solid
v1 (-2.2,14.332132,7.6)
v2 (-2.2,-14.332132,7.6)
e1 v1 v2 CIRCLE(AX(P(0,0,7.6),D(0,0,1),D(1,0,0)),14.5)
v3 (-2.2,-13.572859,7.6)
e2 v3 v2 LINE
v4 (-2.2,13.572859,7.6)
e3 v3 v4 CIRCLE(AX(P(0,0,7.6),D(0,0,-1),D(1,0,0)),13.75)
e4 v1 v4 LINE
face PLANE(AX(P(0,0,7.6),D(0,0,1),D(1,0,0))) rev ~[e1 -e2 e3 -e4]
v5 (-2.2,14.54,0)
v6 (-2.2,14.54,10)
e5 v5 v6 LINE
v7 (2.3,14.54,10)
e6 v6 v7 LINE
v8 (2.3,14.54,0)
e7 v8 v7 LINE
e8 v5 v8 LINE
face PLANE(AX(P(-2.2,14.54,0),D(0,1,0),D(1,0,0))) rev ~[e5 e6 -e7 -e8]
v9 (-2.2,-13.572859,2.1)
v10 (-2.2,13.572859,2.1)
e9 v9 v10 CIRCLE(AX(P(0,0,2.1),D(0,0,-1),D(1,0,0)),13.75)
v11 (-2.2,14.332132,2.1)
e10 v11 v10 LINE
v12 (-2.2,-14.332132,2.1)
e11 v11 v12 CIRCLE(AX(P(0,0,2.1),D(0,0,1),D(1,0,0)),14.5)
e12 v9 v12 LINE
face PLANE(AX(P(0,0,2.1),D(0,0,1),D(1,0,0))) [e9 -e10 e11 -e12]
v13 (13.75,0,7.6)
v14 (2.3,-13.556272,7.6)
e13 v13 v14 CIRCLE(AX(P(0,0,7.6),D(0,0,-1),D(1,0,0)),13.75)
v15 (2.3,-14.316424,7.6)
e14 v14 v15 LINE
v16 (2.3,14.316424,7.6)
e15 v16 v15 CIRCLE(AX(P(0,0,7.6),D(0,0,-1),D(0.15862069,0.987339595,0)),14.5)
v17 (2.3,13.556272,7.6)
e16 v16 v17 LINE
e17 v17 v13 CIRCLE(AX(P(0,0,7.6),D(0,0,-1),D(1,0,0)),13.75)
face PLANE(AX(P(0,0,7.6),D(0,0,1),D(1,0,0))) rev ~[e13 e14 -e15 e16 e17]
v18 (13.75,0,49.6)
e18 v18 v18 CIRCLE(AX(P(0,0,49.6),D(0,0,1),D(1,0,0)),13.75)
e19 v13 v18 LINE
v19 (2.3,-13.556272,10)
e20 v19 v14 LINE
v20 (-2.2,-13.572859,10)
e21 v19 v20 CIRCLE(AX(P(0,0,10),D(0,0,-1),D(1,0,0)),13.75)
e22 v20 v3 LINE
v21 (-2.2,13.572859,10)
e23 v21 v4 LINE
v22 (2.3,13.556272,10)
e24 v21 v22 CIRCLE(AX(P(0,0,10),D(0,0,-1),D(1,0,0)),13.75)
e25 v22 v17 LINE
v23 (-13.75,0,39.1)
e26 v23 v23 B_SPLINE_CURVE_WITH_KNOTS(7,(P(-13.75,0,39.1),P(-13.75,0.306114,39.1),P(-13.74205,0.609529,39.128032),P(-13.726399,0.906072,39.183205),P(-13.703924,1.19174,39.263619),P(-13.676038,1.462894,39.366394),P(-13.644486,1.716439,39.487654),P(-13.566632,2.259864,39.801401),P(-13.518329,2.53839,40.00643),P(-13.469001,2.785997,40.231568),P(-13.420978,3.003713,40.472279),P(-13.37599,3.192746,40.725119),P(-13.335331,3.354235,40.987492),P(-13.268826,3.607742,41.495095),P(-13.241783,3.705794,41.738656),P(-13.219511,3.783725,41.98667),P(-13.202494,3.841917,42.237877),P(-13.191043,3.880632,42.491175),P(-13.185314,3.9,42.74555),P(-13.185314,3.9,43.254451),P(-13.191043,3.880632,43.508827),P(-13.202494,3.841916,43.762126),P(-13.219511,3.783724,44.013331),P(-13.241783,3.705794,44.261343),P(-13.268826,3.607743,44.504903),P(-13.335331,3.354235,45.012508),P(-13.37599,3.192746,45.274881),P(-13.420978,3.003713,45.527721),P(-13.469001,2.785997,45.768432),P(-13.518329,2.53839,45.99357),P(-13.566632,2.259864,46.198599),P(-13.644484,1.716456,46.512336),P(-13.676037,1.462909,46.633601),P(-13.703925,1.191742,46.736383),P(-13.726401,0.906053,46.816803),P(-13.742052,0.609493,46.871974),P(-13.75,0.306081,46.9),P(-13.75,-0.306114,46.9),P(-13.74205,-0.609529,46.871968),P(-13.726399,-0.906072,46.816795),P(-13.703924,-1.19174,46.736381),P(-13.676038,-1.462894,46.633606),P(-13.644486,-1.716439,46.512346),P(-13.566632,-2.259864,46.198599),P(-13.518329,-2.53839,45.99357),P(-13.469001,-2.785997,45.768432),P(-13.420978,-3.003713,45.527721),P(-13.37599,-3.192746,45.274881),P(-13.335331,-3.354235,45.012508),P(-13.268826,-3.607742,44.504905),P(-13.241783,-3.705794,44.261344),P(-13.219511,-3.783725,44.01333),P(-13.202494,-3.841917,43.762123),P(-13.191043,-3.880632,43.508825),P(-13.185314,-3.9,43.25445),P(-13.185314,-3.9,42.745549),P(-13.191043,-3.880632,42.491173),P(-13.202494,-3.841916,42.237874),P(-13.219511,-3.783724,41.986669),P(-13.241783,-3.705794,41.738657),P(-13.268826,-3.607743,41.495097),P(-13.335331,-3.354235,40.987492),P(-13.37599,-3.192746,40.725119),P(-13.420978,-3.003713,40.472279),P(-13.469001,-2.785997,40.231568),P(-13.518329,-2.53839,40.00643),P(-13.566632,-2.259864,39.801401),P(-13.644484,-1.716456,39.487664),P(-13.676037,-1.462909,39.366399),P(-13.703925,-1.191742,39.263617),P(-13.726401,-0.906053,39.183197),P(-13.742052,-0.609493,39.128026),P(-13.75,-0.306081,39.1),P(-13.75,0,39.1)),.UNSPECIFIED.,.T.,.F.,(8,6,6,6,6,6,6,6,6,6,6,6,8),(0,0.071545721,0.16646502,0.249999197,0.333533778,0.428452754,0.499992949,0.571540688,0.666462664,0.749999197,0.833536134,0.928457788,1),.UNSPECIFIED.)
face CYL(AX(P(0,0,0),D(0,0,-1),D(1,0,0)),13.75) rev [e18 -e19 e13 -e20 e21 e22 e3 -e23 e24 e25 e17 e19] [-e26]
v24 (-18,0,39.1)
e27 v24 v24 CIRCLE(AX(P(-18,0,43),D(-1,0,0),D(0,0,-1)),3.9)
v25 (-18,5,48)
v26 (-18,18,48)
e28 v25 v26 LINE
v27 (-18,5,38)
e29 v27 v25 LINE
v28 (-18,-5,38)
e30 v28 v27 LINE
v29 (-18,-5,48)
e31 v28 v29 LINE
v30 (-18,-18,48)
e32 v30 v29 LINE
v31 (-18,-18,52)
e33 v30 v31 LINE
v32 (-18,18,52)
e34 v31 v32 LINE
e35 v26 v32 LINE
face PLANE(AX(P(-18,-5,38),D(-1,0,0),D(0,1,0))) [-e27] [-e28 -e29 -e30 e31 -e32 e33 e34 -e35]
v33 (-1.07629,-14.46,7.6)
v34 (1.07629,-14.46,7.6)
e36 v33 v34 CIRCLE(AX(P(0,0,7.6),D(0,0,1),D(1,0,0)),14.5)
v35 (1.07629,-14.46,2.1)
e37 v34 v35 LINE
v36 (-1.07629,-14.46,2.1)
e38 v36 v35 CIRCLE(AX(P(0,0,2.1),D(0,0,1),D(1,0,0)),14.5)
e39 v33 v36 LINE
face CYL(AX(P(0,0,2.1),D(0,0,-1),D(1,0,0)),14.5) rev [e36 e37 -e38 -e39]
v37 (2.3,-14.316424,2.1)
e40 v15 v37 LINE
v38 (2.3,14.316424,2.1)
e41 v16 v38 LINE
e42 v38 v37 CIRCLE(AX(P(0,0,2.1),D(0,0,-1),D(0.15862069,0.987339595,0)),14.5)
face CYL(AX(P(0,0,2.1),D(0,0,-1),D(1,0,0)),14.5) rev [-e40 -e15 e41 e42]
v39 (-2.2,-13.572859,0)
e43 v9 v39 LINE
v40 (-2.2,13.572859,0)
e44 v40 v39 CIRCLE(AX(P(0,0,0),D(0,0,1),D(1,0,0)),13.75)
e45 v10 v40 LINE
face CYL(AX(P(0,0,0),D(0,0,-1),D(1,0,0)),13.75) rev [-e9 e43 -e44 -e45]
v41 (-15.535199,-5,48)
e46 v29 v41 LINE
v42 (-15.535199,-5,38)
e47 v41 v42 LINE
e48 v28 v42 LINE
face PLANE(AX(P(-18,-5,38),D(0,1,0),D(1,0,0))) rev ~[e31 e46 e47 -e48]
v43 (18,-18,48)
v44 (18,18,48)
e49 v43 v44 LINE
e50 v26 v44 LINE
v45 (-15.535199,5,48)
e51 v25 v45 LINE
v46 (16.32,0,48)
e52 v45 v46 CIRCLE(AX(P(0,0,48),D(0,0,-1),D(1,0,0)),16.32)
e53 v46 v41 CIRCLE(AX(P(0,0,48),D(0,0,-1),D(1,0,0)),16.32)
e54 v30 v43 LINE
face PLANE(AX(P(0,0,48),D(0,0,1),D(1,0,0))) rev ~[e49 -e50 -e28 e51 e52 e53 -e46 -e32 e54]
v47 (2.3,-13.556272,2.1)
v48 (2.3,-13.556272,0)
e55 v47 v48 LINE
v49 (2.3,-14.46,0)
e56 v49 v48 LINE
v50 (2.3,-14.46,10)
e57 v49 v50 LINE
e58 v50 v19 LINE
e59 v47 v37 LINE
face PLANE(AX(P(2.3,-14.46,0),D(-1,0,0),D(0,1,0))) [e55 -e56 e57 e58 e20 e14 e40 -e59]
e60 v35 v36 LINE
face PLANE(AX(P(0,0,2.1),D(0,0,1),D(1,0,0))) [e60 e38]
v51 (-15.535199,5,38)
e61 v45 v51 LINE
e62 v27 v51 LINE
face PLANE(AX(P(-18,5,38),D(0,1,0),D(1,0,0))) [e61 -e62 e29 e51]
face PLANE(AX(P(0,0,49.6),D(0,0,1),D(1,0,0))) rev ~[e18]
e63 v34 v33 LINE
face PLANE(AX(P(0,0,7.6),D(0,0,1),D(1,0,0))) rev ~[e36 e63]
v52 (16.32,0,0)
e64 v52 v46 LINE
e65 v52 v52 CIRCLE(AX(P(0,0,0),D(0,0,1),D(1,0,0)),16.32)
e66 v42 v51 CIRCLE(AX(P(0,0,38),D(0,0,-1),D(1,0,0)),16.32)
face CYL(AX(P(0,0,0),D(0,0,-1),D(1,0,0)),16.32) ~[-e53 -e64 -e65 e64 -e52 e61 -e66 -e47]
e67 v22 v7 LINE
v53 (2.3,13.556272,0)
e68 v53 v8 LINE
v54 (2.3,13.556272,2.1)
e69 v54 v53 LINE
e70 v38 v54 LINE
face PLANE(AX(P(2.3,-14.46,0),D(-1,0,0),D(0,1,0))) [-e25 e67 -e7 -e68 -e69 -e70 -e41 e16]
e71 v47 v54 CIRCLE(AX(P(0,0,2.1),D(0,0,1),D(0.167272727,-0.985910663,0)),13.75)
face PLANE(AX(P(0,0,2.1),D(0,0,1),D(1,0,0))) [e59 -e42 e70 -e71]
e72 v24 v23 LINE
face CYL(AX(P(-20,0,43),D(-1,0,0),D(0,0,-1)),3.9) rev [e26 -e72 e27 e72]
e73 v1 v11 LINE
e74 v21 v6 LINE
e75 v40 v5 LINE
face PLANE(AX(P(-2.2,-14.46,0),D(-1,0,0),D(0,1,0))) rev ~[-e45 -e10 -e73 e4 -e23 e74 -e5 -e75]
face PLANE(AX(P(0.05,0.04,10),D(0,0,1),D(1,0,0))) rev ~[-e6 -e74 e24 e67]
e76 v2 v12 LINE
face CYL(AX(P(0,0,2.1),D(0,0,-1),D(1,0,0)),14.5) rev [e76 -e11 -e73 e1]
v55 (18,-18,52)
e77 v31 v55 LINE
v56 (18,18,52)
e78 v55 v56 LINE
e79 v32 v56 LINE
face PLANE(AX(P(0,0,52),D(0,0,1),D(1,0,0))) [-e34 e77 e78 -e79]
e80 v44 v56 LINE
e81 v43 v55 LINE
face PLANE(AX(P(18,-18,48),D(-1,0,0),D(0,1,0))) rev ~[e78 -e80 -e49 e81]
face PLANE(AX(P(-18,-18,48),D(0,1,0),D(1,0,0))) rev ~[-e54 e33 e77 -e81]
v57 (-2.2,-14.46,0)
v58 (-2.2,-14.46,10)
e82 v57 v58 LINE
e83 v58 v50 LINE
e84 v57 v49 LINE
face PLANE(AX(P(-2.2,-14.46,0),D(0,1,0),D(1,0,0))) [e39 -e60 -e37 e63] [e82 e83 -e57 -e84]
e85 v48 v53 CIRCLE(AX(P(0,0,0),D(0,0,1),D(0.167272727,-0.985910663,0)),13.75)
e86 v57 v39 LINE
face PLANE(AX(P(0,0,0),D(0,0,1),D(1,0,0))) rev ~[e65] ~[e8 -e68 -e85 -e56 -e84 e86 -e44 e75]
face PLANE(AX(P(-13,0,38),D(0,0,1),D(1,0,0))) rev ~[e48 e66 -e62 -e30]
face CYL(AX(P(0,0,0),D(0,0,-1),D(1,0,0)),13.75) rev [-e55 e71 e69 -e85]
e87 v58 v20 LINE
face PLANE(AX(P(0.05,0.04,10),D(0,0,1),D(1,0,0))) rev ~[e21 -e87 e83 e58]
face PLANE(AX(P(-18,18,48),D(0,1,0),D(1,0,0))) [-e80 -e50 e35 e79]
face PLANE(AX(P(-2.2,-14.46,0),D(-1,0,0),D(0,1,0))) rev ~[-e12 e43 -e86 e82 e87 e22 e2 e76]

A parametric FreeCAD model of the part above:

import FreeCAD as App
import Part
import Sketcher

V = App.Vector
Q = App.Units.Quantity

doc = App.newDocument("Part")
params = doc.addObject("Spreadsheet::Sheet", "Params")
for row, (alias, value) in enumerate([
    ("sketch1_height", "29 mm"),
    ("sketch1_width", "4.5 mm"),
    ("pad1_length", "10 mm"),
    ("sketch2_diameter", "29 mm"),
    ("pad2_length", "5.5 mm"),
    ("sketch3_diameter", "7.8 mm"),
    ("pad3_length", "10 mm"),
    ("sketch4_diameter", "27.5 mm"),
    ("pad4_length", "49.6 mm"),
    ("sketch5_width", "36 mm"),
    ("pad5_length", "4 mm"),
    ("sketch6_width", "10 mm"),
    ("pad6_length", "10 mm"),
    ("sketch7_diameter", "32.64 mm"),
    ("pad7_length", "52 mm"),
], start=1):
    params.set(f"A{row}", alias)
    params.set(f"B{row}", "=" + value)
    params.setAlias(f"B{row}", alias)

body = doc.addObject("PartDesign::Body", "Body")

# Sketch on XY plane
sketch1 = body.newObject("Sketcher::SketchObject", "Sketch")
sketch1.AttachmentSupport = (doc.getObject("XY_Plane"), [""])
sketch1.MapMode = "FlatFace"
sketch1.addGeometry(Part.LineSegment(V(-2.2, 14.5, 0), V(-2.2, -14.5, 0)), False)
sketch1.addGeometry(Part.LineSegment(V(-2.2, -14.5, 0), V(2.3, -14.5, 0)), False)
sketch1.addGeometry(Part.LineSegment(V(2.3, -14.5, 0), V(2.3, 14.5, 0)), False)
sketch1.addGeometry(Part.LineSegment(V(2.3, 14.5, 0), V(-2.2, 14.5, 0)), False)
sketch1.addConstraint(Sketcher.Constraint("Coincident", 0, 2, 1, 1))
sketch1.addConstraint(Sketcher.Constraint("Coincident", 1, 2, 2, 1))
sketch1.addConstraint(Sketcher.Constraint("Coincident", 2, 2, 3, 1))
sketch1.addConstraint(Sketcher.Constraint("Coincident", 3, 2, 0, 1))
sketch1.addConstraint(Sketcher.Constraint("Vertical", 0))
sketch1.addConstraint(Sketcher.Constraint("Horizontal", 1))
sketch1.addConstraint(Sketcher.Constraint("Vertical", 2))
sketch1.addConstraint(Sketcher.Constraint("Horizontal", 3))
sketch1.addConstraint(Sketcher.Constraint("DistanceY", 0, 2, 0, 1, Q("29 mm")))
sketch1.addConstraint(Sketcher.Constraint("DistanceX", 1, 1, 1, 2, Q("4.5 mm")))
sketch1.addConstraint(Sketcher.Constraint("DistanceX", 0, 2, -1, 1, Q("2.2 mm")))
sketch1.addConstraint(Sketcher.Constraint("DistanceY", 0, 2, -1, 1, Q("14.46 mm")))
sketch1.setExpression("Constraints[8]", "Params.sketch1_height")
sketch1.setExpression("Constraints[9]", "Params.sketch1_width")
pad1 = body.newObject("PartDesign::Pad", "Pad")
pad1.Profile = sketch1
pad1.setExpression("Length", "Params.pad1_length")
body2 = doc.addObject("PartDesign::Body", "Body001")

# Sketch on XY plane
sketch2 = body2.newObject("Sketcher::SketchObject", "Sketch001")
sketch2.AttachmentSupport = (doc.getObject("XY_Plane001"), [""])
sketch2.MapMode = "FlatFace"
sketch2.AttachmentOffset = App.Placement(V(0, 0, 2.1), App.Rotation())
sketch2.addGeometry(Part.Circle(V(0, 0, 0), V(0, 0, 1), 14), False)
sketch2.addConstraint(Sketcher.Constraint("Coincident", 0, 3, -1, 1))
sketch2.addConstraint(Sketcher.Constraint("Diameter", 0, Q("29 mm")))
sketch2.setExpression("Constraints[1]", "Params.sketch2_diameter")
pad2 = body2.newObject("PartDesign::Pad", "Pad001")
pad2.Profile = sketch2
pad2.setExpression("Length", "Params.pad2_length")
body3 = doc.addObject("PartDesign::Body", "Body002")

# Sketch on YZ plane
sketch3 = body3.newObject("Sketcher::SketchObject", "Sketch002")
sketch3.AttachmentSupport = (doc.getObject("YZ_Plane002"), [""])
sketch3.MapMode = "FlatFace"
sketch3.AttachmentOffset = App.Placement(V(0, 0, -20), App.Rotation())
sketch3.addGeometry(Part.Circle(V(0, 43, 0), V(0, 0, 1), 3.9), False)
sketch3.addConstraint(Sketcher.Constraint("PointOnObject", 0, 3, -2))
sketch3.addConstraint(Sketcher.Constraint("Diameter", 0, Q("7.8 mm")))
sketch3.addConstraint(Sketcher.Constraint("DistanceY", -1, 1, 0, 3, Q("43 mm")))
sketch3.setExpression("Constraints[1]", "Params.sketch3_diameter")
pad3 = body3.newObject("PartDesign::Pad", "Pad002")
pad3.Profile = sketch3
pad3.setExpression("Length", "Params.pad3_length")
body4 = doc.addObject("PartDesign::Body", "Body003")

# Sketch on XY plane
sketch4 = body4.newObject("Sketcher::SketchObject", "Sketch003")
sketch4.AttachmentSupport = (doc.getObject("XY_Plane003"), [""])
sketch4.MapMode = "FlatFace"
sketch4.addGeometry(Part.Circle(V(0, 0, 0), V(0, 0, 1), 14), False)
sketch4.addConstraint(Sketcher.Constraint("Coincident", 0, 3, -1, 1))
sketch4.addConstraint(Sketcher.Constraint("Diameter", 0, Q("27.5 mm")))
sketch4.setExpression("Constraints[1]", "Params.sketch4_diameter")
pad4 = body4.newObject("PartDesign::Pad", "Pad003")
pad4.Profile = sketch4
pad4.setExpression("Length", "Params.pad4_length")
body5 = doc.addObject("PartDesign::Body", "Body004")

# Sketch on XY plane
sketch5 = body5.newObject("Sketcher::SketchObject", "Sketch004")
sketch5.AttachmentSupport = (doc.getObject("XY_Plane004"), [""])
sketch5.MapMode = "FlatFace"
sketch5.AttachmentOffset = App.Placement(V(0, 0, 48), App.Rotation())
sketch5.addGeometry(Part.LineSegment(V(-18, 18, 0), V(-18, -18, 0)), False)
sketch5.addGeometry(Part.LineSegment(V(-18, -18, 0), V(18, -18, 0)), False)
sketch5.addGeometry(Part.LineSegment(V(18, -18, 0), V(18, 18, 0)), False)
sketch5.addGeometry(Part.LineSegment(V(18, 18, 0), V(-18, 18, 0)), False)
sketch5.addConstraint(Sketcher.Constraint("Coincident", 0, 2, 1, 1))
sketch5.addConstraint(Sketcher.Constraint("Coincident", 1, 2, 2, 1))
sketch5.addConstraint(Sketcher.Constraint("Coincident", 2, 2, 3, 1))
sketch5.addConstraint(Sketcher.Constraint("Coincident", 3, 2, 0, 1))
sketch5.addConstraint(Sketcher.Constraint("Vertical", 0))
sketch5.addConstraint(Sketcher.Constraint("Horizontal", 1))
sketch5.addConstraint(Sketcher.Constraint("Vertical", 2))
sketch5.addConstraint(Sketcher.Constraint("Horizontal", 3))
sketch5.addConstraint(Sketcher.Constraint("Symmetric", 0, 2, 2, 2, -1, 1))
sketch5.addConstraint(Sketcher.Constraint("Equal", 3, 0))
sketch5.addConstraint(Sketcher.Constraint("DistanceX", 1, 1, 1, 2, Q("36 mm")))
sketch5.setExpression("Constraints[10]", "Params.sketch5_width")
pad5 = body5.newObject("PartDesign::Pad", "Pad004")
pad5.Profile = sketch5
pad5.setExpression("Length", "Params.pad5_length")
body6 = doc.addObject("PartDesign::Body", "Body005")

# Sketch on XY plane
sketch6 = body6.newObject("Sketcher::SketchObject", "Sketch005")
sketch6.AttachmentSupport = (doc.getObject("XY_Plane005"), [""])
sketch6.MapMode = "FlatFace"
sketch6.AttachmentOffset = App.Placement(V(0, 0, 38), App.Rotation())
sketch6.addGeometry(Part.LineSegment(V(-18, 5, 0), V(-18, -5, 0)), False)
sketch6.addGeometry(Part.LineSegment(V(-18, -5, 0), V(-8, -5, 0)), False)
sketch6.addGeometry(Part.LineSegment(V(-8, -5, 0), V(-8, 5, 0)), False)
sketch6.addGeometry(Part.LineSegment(V(-8, 5, 0), V(-18, 5, 0)), False)
sketch6.addConstraint(Sketcher.Constraint("Coincident", 0, 2, 1, 1))
sketch6.addConstraint(Sketcher.Constraint("Coincident", 1, 2, 2, 1))
sketch6.addConstraint(Sketcher.Constraint("Coincident", 2, 2, 3, 1))
sketch6.addConstraint(Sketcher.Constraint("Coincident", 3, 2, 0, 1))
sketch6.addConstraint(Sketcher.Constraint("Vertical", 0))
sketch6.addConstraint(Sketcher.Constraint("Horizontal", 1))
sketch6.addConstraint(Sketcher.Constraint("Vertical", 2))
sketch6.addConstraint(Sketcher.Constraint("Horizontal", 3))
sketch6.addConstraint(Sketcher.Constraint("Equal", 3, 0))
sketch6.addConstraint(Sketcher.Constraint("DistanceX", 1, 1, 1, 2, Q("10 mm")))
sketch6.addConstraint(Sketcher.Constraint("DistanceX", 0, 2, -1, 1, Q("18 mm")))
sketch6.addConstraint(Sketcher.Constraint("DistanceY", 0, 2, -1, 1, Q("5 mm")))
sketch6.setExpression("Constraints[9]", "Params.sketch6_width")
pad6 = body6.newObject("PartDesign::Pad", "Pad005")
pad6.Profile = sketch6
pad6.setExpression("Length", "Params.pad6_length")
body7 = doc.addObject("PartDesign::Body", "Body006")

# Sketch on XY plane
sketch7 = body7.newObject("Sketcher::SketchObject", "Sketch006")
sketch7.AttachmentSupport = (doc.getObject("XY_Plane006"), [""])
sketch7.MapMode = "FlatFace"
sketch7.addGeometry(Part.Circle(V(0, 0, 0), V(0, 0, 1), 16), False)
sketch7.addConstraint(Sketcher.Constraint("Coincident", 0, 3, -1, 1))
sketch7.addConstraint(Sketcher.Constraint("Diameter", 0, Q("32.64 mm")))
sketch7.setExpression("Constraints[1]", "Params.sketch7_diameter")
pad7 = body7.newObject("PartDesign::Pad", "Pad006")
pad7.Profile = sketch7
pad7.setExpression("Length", "Params.pad7_length")
doc.recompute()

boolean = body7.newObject("PartDesign::Boolean", "Boolean")
boolean.Type = "Fuse"
boolean.addObjects([body5])
doc.recompute()

boolean2 = body7.newObject("PartDesign::Boolean", "Boolean001")
boolean2.Type = "Fuse"
boolean2.addObjects([body6])
doc.recompute()

boolean3 = body7.newObject("PartDesign::Boolean", "Boolean002")
boolean3.Type = "Cut"
boolean3.addObjects([body4])
doc.recompute()

boolean4 = body7.newObject("PartDesign::Boolean", "Boolean003")
boolean4.Type = "Cut"
boolean4.addObjects([body3])
doc.recompute()

boolean5 = body7.newObject("PartDesign::Boolean", "Boolean004")
boolean5.Type = "Cut"
boolean5.addObjects([body2])
doc.recompute()

boolean6 = body7.newObject("PartDesign::Boolean", "Boolean005")
boolean6.Type = "Cut"
boolean6.addObjects([body])

doc.recompute()
